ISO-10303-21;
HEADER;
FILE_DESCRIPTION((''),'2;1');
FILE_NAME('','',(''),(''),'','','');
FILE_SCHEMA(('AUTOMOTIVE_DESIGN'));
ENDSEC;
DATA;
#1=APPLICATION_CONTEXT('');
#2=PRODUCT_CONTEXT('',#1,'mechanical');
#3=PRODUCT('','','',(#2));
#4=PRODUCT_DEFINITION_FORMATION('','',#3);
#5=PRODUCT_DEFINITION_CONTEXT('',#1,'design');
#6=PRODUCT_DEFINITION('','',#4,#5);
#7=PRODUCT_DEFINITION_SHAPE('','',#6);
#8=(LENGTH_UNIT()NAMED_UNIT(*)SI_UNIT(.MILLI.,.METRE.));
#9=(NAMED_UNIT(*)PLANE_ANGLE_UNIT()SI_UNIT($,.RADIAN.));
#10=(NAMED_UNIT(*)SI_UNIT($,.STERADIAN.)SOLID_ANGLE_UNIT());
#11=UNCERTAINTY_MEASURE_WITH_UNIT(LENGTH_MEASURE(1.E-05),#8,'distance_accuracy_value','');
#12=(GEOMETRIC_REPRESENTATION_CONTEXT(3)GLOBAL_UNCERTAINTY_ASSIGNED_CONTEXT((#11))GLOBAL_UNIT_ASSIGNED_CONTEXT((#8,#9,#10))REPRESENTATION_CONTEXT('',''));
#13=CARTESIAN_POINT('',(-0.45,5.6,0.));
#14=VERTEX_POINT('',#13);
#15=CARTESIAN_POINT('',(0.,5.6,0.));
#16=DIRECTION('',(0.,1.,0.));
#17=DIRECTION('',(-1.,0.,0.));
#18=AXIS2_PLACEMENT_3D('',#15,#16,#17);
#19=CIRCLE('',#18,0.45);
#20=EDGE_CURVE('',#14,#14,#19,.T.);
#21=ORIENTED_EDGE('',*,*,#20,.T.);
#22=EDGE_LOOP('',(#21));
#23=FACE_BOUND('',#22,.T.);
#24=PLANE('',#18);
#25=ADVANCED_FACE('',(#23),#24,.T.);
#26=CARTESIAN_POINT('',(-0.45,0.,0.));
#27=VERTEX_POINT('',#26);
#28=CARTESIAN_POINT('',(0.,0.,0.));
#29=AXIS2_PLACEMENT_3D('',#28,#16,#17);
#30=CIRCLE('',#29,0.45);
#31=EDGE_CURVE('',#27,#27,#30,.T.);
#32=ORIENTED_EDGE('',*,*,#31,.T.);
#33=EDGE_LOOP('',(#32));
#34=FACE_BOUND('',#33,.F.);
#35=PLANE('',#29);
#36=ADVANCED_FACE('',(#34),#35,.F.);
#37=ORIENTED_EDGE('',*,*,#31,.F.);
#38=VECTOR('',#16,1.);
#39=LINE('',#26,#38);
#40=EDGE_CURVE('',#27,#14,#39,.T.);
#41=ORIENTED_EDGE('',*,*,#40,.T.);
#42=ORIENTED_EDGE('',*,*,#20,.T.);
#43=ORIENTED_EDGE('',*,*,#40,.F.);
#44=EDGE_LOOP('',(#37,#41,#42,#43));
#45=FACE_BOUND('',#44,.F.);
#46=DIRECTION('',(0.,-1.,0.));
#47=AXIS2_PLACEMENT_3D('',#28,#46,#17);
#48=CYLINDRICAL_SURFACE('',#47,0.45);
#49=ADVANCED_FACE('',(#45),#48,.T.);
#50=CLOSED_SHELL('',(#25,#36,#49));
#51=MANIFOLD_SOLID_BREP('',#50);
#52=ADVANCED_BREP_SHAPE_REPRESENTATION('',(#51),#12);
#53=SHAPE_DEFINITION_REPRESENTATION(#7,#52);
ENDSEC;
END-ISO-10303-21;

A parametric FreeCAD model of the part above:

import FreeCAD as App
import Part
import Sketcher
Q = App.Units.Quantity

doc = App.newDocument("Part")
body = doc.addObject("PartDesign::Body", "Body")

# Sketch on XZ plane
sketch1 = body.newObject("Sketcher::SketchObject", "Sketch")
sketch1.AttachmentSupport = (doc.getObject("XZ_Plane"), [""])
sketch1.MapMode = "FlatFace"
sketch1.addGeometry(Part.Circle(App.Vector(0, 0, 0), App.Vector(0, 0, 1), 0.45), False)
sketch1.addConstraint([
    Sketcher.Constraint("Coincident", 0, 3, -1, 1),
    Sketcher.Constraint("Diameter", 0, Q("0.9 mm")),
])
pad1 = body.newObject("PartDesign::Pad", "Pad")
pad1.Profile = sketch1
pad1.Length = 5.6
pad1.Reversed = True

doc.recompute()
